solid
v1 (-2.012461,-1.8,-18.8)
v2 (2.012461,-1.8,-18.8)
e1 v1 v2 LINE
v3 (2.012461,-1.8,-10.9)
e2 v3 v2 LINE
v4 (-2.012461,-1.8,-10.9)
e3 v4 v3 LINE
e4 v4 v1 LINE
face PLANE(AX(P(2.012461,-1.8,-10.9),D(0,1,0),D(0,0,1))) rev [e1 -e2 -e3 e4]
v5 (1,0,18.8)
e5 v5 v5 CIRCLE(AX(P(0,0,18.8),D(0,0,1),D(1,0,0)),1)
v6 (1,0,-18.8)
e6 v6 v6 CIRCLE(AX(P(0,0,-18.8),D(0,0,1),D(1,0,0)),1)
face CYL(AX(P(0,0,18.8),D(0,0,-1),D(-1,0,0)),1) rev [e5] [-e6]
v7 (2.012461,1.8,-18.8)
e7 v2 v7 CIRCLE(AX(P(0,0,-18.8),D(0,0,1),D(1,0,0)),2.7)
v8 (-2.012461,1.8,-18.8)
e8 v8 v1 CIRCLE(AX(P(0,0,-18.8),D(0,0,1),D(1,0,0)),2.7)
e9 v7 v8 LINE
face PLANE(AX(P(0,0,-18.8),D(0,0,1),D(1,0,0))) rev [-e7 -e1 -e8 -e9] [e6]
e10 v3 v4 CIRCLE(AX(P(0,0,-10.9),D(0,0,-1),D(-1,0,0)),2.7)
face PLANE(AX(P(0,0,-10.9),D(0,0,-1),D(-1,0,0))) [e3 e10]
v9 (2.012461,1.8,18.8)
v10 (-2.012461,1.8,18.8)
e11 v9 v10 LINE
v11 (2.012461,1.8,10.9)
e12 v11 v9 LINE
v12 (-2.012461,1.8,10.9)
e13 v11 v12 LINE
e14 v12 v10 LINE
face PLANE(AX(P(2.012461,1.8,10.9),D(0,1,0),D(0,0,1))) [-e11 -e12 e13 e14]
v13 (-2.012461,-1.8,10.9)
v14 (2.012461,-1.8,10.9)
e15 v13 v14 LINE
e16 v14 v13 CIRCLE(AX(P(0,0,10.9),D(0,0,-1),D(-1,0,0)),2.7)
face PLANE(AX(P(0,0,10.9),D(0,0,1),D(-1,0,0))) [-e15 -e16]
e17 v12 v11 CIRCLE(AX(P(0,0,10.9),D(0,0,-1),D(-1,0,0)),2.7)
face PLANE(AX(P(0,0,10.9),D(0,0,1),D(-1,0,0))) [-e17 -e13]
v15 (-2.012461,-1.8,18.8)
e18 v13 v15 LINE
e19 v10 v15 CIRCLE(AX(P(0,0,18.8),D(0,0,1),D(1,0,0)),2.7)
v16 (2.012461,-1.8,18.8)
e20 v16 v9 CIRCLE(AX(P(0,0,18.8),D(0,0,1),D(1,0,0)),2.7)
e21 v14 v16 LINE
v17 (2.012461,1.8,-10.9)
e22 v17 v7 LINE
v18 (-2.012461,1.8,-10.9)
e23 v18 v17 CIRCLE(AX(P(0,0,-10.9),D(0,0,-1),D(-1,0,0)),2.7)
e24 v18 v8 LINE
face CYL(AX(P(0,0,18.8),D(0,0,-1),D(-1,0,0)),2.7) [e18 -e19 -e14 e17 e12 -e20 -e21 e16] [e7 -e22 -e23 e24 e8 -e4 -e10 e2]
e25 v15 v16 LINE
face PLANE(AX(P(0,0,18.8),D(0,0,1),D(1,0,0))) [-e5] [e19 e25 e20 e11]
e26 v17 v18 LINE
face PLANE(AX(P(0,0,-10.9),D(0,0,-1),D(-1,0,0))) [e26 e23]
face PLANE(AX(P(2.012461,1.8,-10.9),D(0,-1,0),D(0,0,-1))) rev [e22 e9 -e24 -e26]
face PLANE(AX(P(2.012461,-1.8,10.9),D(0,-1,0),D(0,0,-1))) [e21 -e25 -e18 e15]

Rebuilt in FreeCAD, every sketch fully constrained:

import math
import FreeCAD as App
import Part
import Sketcher

V = App.Vector

doc = App.newDocument("Part")
body = doc.addObject("PartDesign::Body", "Body")

# Sketch on XY plane
sketch1 = body.newObject("Sketcher::SketchObject", "Sketch")
sketch1.AttachmentSupport = (doc.getObject("XY_Plane"), [""])
sketch1.MapMode = "FlatFace"
sketch1.addGeometry(Part.Circle(V(0, 0, 0), V(0, 0, 1), 2.7), False)
sketch1.addGeometry(Part.Circle(V(0, 0, 0), V(0, 0, 1), 1), False)
sketch1.addConstraint(Sketcher.Constraint("Coincident", 0, 3, -1, 1))
sketch1.addConstraint(Sketcher.Constraint("Coincident", 1, 3, -1, 1))
sketch1.addConstraint(Sketcher.Constraint("Diameter", 1, 2.0))
sketch1.addConstraint(Sketcher.Constraint("Diameter", 0, 5.4))
pad1 = body.newObject("PartDesign::Pad", "Pad")
pad1.Profile = sketch1
pad1.Length = 37.6
pad1.Midplane = True

# Sketch on XY plane
sketch2 = body.newObject("Sketcher::SketchObject", "Sketch001")
sketch2.AttachmentSupport = (doc.getObject("XY_Plane"), [""])
sketch2.MapMode = "FlatFace"
sketch2.AttachmentOffset = App.Placement(V(0, 0, -10.9), App.Rotation())
sketch2.addGeometry(Part.LineSegment(V(2.012461, 1.8, 0), V(-2.012461, 1.8, 0)), False)
sketch2.addGeometry(Part.ArcOfCircle(Part.Circle(V(0, 0, 0), V(0, 0, 1), 2.7), math.radians(41.810315), math.radians(138.189685)), False)
sketch2.addGeometry(Part.LineSegment(V(-2.012461, -1.8, 0), V(2.012461, -1.8, 0)), False)
sketch2.addGeometry(Part.ArcOfCircle(Part.Circle(V(0, 0, 0), V(0, 0, 1), 2.7), math.radians(-138.189685), math.radians(-41.810315)), False)
sketch2.addConstraint(Sketcher.Constraint("Coincident", 0, 1, 1, 1))
sketch2.addConstraint(Sketcher.Constraint("Coincident", 1, 2, 0, 2))
sketch2.addConstraint(Sketcher.Constraint("Coincident", 2, 1, 3, 1))
sketch2.addConstraint(Sketcher.Constraint("Coincident", 3, 2, 2, 2))
sketch2.addConstraint(Sketcher.Constraint("Horizontal", 0))
sketch2.addConstraint(Sketcher.Constraint("Horizontal", 2))
sketch2.addConstraint(Sketcher.Constraint("Coincident", 1, 3, -1, 1))
sketch2.addConstraint(Sketcher.Constraint("Coincident", 3, 3, -1, 1))
sketch2.addConstraint(Sketcher.Constraint("Equal", 1, 3))
sketch2.addConstraint(Sketcher.Constraint("Vertical", 1, 2, 2, 1))
sketch2.addConstraint(Sketcher.Constraint("Radius", 1, 2.7))
sketch2.addConstraint(Sketcher.Constraint("DistanceY", -1, 1, 0, 1, 1.8))
pocket1 = body.newObject("PartDesign::Pocket", "Pocket")
pocket1.Profile = sketch2
pocket1.Length = 7.9
doc.recompute()

mirrored = body.newObject("PartDesign::Mirrored", "Mirrored")
mirrored.Originals = [pocket1]
mirrored.MirrorPlane = (doc.getObject("XY_Plane"), [""])
body.Tip = mirrored

doc.recompute()
